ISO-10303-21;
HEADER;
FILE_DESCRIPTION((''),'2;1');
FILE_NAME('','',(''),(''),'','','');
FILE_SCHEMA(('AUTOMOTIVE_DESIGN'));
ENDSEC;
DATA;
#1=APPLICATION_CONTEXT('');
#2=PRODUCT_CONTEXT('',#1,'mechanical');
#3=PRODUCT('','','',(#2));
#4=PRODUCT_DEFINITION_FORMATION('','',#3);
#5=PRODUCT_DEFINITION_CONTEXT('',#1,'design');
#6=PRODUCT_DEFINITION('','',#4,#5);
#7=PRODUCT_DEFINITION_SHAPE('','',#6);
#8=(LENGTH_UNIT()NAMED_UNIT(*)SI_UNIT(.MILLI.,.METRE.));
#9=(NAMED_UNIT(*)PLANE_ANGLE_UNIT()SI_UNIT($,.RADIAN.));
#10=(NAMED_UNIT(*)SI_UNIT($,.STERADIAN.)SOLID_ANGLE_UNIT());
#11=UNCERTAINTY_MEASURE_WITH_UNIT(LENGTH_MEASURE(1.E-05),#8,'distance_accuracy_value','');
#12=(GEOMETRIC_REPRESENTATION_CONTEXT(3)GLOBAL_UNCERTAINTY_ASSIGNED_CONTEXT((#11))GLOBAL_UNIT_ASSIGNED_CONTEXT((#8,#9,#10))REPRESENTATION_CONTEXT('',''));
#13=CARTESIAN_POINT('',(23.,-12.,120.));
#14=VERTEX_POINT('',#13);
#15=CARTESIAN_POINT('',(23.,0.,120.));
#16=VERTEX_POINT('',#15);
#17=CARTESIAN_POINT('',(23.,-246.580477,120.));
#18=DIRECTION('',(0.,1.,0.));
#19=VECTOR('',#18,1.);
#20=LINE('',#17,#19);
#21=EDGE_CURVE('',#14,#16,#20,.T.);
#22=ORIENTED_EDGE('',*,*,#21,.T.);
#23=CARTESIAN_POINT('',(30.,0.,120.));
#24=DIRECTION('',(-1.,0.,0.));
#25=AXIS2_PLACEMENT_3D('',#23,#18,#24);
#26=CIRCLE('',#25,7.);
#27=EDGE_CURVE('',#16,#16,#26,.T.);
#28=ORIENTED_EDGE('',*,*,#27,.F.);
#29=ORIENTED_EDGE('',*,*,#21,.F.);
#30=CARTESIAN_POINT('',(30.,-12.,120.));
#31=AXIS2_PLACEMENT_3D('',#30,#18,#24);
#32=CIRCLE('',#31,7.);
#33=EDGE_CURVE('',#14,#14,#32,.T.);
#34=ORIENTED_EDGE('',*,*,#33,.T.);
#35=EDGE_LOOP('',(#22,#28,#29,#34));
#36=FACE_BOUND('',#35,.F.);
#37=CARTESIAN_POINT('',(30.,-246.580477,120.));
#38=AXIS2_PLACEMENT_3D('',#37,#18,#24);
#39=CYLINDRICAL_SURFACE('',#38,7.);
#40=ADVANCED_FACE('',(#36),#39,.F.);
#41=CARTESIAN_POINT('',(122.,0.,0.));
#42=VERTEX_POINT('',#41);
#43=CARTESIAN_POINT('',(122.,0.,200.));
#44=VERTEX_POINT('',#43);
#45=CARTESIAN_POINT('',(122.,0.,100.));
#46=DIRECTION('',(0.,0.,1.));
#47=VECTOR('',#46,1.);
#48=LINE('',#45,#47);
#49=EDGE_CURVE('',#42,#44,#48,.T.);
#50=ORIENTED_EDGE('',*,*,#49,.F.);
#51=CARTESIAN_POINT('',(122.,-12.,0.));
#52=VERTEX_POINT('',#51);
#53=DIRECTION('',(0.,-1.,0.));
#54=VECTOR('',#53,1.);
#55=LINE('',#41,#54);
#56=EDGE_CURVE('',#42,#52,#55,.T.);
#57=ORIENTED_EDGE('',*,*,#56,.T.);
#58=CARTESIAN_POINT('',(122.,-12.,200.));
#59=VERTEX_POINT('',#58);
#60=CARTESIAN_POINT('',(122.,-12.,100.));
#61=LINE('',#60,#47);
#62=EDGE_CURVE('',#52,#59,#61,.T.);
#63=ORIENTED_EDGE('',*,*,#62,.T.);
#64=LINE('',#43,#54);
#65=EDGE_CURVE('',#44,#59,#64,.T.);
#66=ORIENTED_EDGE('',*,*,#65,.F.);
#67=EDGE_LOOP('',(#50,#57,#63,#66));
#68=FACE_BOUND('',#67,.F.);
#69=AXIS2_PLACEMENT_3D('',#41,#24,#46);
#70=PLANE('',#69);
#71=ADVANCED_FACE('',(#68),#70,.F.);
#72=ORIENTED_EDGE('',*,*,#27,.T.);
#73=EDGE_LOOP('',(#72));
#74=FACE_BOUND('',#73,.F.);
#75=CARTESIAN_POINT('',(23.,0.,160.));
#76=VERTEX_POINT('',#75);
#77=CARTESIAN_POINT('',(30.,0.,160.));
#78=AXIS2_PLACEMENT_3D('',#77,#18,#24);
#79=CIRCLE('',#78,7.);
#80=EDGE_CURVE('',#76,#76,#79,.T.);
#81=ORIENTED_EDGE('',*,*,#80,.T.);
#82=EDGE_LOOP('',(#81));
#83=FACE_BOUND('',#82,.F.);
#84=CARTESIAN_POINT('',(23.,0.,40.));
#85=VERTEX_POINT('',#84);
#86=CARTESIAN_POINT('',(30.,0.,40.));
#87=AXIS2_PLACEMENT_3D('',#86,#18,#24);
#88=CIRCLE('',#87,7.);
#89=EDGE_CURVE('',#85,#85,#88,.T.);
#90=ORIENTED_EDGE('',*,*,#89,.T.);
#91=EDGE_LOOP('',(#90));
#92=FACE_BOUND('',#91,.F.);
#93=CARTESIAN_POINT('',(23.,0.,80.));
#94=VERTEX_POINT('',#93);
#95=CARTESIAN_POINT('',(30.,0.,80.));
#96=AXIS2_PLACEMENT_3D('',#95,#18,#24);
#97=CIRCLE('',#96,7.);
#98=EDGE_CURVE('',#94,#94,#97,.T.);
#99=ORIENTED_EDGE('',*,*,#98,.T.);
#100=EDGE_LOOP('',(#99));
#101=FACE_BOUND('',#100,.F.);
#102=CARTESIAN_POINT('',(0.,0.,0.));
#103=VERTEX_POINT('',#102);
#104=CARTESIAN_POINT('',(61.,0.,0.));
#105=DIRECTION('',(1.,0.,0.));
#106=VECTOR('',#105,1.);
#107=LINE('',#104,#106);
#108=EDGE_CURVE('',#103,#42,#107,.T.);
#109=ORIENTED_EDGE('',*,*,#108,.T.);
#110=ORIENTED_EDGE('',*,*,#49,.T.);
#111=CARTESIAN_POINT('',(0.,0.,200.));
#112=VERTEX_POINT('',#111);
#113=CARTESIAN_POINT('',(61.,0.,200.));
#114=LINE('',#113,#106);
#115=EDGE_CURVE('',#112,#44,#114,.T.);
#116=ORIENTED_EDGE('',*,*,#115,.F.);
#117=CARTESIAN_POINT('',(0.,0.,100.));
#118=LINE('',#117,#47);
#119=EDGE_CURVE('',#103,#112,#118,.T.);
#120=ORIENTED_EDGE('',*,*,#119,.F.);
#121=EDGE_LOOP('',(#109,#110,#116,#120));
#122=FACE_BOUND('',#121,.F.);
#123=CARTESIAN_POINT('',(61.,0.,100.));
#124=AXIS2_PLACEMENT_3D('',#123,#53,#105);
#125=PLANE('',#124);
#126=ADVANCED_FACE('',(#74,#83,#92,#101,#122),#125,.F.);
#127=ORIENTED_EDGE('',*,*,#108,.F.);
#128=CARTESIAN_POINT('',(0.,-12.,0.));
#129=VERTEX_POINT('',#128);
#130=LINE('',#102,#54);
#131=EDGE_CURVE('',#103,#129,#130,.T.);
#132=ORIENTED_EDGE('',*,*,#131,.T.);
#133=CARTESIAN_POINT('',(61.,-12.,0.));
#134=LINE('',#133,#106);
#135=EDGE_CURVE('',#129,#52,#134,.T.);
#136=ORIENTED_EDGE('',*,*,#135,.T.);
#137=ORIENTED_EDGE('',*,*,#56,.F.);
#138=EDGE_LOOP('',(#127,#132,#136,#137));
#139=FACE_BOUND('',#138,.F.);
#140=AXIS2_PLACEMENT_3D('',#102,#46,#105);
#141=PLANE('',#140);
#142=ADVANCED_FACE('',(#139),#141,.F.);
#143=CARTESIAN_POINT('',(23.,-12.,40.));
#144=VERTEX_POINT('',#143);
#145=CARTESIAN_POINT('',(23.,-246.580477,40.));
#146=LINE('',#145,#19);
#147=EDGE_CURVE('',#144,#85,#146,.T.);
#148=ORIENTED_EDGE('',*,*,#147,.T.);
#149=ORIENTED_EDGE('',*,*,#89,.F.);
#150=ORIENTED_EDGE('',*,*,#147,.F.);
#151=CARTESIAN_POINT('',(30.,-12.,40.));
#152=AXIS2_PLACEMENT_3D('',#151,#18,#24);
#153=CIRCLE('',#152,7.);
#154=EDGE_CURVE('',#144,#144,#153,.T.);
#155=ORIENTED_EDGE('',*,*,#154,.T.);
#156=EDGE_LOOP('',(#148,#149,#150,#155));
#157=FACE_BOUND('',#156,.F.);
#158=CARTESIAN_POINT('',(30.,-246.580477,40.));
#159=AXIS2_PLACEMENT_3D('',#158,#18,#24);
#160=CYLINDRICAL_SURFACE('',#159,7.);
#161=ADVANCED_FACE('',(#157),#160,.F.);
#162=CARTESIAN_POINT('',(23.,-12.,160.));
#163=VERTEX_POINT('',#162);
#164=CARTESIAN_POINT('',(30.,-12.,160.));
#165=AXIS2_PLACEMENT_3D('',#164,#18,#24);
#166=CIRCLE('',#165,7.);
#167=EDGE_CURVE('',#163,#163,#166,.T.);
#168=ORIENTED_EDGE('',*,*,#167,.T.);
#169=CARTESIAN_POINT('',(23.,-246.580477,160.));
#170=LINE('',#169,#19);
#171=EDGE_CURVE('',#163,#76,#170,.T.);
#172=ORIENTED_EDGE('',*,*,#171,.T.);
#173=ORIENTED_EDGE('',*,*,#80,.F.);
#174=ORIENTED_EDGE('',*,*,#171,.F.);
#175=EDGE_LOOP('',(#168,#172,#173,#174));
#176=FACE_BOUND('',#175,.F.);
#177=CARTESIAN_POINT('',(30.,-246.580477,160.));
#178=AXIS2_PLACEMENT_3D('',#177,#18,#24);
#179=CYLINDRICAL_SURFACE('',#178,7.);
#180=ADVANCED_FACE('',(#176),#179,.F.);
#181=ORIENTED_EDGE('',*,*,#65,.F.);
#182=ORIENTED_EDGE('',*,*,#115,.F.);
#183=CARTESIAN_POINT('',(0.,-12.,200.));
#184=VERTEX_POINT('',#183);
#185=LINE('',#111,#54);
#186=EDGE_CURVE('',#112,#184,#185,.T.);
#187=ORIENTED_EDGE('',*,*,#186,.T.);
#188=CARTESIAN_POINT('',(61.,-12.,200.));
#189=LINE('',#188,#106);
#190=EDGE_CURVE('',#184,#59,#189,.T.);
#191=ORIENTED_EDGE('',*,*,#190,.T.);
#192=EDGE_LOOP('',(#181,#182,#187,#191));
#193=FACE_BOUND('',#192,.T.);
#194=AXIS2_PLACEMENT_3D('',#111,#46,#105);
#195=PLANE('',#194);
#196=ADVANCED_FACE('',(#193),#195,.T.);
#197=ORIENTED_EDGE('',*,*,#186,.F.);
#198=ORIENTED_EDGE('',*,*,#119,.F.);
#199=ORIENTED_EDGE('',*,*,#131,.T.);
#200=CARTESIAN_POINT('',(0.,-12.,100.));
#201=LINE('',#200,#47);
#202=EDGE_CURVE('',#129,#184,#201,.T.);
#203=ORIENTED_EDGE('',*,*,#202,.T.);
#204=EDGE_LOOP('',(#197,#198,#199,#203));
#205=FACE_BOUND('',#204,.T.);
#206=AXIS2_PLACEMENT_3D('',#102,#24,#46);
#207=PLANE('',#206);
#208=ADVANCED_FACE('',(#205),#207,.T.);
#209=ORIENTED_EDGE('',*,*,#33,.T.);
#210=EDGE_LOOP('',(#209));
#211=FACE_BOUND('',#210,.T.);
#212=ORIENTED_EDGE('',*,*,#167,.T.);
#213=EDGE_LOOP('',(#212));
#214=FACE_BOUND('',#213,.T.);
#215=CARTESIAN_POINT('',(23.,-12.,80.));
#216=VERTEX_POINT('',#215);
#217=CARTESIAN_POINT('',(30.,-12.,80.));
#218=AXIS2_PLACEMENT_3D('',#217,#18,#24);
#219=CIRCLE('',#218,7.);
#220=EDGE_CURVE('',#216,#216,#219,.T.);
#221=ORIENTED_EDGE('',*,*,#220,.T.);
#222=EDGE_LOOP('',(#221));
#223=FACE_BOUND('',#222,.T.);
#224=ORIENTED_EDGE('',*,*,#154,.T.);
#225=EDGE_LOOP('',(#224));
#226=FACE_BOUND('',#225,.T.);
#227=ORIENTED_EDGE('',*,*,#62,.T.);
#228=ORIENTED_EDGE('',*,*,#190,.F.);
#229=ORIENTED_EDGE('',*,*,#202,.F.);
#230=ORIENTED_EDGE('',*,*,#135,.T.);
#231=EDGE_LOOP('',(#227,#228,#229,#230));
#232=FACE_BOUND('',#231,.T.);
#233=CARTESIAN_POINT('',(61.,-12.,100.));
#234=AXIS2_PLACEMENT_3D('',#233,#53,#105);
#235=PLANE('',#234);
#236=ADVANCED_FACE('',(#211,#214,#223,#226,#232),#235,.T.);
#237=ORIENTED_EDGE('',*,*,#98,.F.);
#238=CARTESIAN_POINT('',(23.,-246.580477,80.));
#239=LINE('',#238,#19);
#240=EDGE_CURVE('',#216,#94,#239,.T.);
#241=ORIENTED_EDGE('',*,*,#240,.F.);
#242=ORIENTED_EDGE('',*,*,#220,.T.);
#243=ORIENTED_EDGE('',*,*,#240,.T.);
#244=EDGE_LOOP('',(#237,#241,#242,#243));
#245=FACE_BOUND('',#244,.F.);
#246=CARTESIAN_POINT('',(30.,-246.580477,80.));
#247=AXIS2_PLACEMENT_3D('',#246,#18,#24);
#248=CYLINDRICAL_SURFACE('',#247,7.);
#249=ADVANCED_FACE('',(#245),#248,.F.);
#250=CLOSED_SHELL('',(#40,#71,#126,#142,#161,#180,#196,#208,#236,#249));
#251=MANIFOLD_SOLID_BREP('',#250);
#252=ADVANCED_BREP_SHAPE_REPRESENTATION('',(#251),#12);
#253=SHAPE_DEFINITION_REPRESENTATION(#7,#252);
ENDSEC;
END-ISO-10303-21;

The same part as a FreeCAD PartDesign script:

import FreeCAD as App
import Part
import Sketcher
from FreeCAD import Vector
Q = App.Units.Quantity


def add_polygon(sketch, points):
    """Adds a closed chain of lines whose ends are joined by coincident constraints."""
    first, n = sketch.GeometryCount, len(points)
    for a, b in zip(points, points[1:] + points[:1]):
        sketch.addGeometry(Part.LineSegment(App.Vector(*a, 0), App.Vector(*b, 0)), False)
    for i in range(n):
        sketch.addConstraint(Sketcher.Constraint("Coincident", first + i, 2, first + (i + 1) % n, 1))

doc = App.newDocument("Part")
body = doc.addObject("PartDesign::Body", "Body")

# Sketch on XZ plane
sketch1 = body.newObject("Sketcher::SketchObject", "Sketch")
sketch1.AttachmentSupport = (doc.getObject("XZ_Plane"), [""])
sketch1.MapMode = "FlatFace"
add_polygon(sketch1, [(0, 200), (0, 0), (122, 0), (122, 200)])  # lines 0-3
sketch1.addConstraint(Sketcher.Constraint("Vertical", 0))
sketch1.addConstraint(Sketcher.Constraint("Horizontal", 1))
sketch1.addConstraint(Sketcher.Constraint("Vertical", 2))
sketch1.addConstraint(Sketcher.Constraint("Horizontal", 3))
sketch1.addConstraint(Sketcher.Constraint("Coincident", 0, 2, -1, 1))
sketch1.addConstraint(Sketcher.Constraint("DistanceX", 1, 1, 1, 2, Q("122 mm")))
sketch1.addConstraint(Sketcher.Constraint("DistanceY", 0, 2, 0, 1, Q("200 mm")))
pad1 = body.newObject("PartDesign::Pad", "Pad")
pad1.Profile = sketch1
pad1.Length = 12

# Sketch on XZ plane
sketch2 = body.newObject("Sketcher::SketchObject", "Sketch001")
sketch2.AttachmentSupport = (doc.getObject("XZ_Plane"), [""])
sketch2.MapMode = "FlatFace"
sketch2.AttachmentOffset = App.Placement(Vector(0, 0, 12), App.Rotation())
sketch2.addGeometry(Part.Circle(Vector(30, 160, 0), Vector(0, 0, 1), 7), False)
sketch2.addGeometry(Part.Circle(Vector(30, 120, 0), Vector(0, 0, 1), 7), False)
sketch2.addGeometry(Part.Circle(Vector(30, 80, 0), Vector(0, 0, 1), 7), False)
sketch2.addGeometry(Part.Circle(Vector(30, 40, 0), Vector(0, 0, 1), 7), False)
sketch2.addConstraint(Sketcher.Constraint("Equal", 0, 1))
sketch2.addConstraint(Sketcher.Constraint("Equal", 1, 2))
sketch2.addConstraint(Sketcher.Constraint("Equal", 2, 3))
sketch2.addConstraint(Sketcher.Constraint("Vertical", 0, 3, 1, 3))
sketch2.addConstraint(Sketcher.Constraint("Vertical", 1, 3, 2, 3))
sketch2.addConstraint(Sketcher.Constraint("Vertical", 2, 3, 3, 3))
sketch2.addConstraint(Sketcher.Constraint("Diameter", 0, Q("14 mm")))
sketch2.addConstraint(Sketcher.Constraint("DistanceX", -1, 1, 0, 3, Q("30 mm")))
sketch2.addConstraint(Sketcher.Constraint("DistanceY", -1, 1, 0, 3, Q("160 mm")))
sketch2.addConstraint(Sketcher.Constraint("DistanceY", -1, 1, 1, 3, Q("120 mm")))
sketch2.addConstraint(Sketcher.Constraint("DistanceY", -1, 1, 2, 3, Q("80 mm")))
sketch2.addConstraint(Sketcher.Constraint("DistanceY", -1, 1, 3, 3, Q("40 mm")))
doc.recompute()
hole = body.newObject("PartDesign::Hole", "Hole")
hole.Profile = sketch2
hole.ThreadType = "None"
hole.Diameter = 14
hole.DepthType = "ThroughAll"

doc.recompute()
